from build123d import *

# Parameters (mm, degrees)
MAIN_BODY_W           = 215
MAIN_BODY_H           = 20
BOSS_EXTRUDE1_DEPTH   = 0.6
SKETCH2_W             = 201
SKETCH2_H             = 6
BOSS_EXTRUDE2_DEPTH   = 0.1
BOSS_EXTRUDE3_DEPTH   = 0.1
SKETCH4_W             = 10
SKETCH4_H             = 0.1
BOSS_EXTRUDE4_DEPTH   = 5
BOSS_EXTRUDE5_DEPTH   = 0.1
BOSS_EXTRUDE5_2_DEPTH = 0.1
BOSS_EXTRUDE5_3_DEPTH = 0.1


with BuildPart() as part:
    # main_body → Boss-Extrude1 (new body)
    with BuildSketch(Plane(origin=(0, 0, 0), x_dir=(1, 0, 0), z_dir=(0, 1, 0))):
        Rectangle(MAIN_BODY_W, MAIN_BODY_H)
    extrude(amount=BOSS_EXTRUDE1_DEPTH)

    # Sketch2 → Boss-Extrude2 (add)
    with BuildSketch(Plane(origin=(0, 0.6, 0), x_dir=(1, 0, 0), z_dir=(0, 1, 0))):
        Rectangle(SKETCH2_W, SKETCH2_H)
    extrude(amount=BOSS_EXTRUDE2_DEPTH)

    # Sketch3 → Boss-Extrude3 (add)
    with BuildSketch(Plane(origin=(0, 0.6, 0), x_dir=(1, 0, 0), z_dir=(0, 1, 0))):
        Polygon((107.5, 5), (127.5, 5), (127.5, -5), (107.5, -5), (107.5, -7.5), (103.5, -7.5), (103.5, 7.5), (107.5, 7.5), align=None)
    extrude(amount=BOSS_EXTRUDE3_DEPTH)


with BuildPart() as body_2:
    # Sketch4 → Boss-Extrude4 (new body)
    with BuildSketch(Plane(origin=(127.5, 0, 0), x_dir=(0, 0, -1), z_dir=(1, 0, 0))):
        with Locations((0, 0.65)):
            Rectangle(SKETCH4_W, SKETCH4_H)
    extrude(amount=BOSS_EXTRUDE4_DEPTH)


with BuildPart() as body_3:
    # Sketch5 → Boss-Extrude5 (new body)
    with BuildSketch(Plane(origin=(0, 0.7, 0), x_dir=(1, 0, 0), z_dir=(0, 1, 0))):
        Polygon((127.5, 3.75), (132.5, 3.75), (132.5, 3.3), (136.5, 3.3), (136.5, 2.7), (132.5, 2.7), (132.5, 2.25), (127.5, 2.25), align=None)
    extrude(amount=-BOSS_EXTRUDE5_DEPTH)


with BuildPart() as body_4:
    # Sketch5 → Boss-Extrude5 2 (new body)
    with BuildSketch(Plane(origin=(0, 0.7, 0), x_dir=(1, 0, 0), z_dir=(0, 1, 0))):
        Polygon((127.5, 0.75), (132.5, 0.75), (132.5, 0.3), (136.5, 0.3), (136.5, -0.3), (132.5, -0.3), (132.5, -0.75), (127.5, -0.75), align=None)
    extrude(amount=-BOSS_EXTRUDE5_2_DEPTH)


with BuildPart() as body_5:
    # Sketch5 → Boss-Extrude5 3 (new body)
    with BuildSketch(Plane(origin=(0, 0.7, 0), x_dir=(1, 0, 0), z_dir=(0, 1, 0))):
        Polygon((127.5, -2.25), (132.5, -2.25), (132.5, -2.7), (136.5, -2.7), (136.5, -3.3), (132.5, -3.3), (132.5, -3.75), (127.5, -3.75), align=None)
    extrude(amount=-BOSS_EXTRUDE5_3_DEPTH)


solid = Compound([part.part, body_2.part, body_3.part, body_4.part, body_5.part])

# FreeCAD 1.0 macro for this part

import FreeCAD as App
import Part
import Sketcher
from FreeCAD import Vector
Q = App.Units.Quantity


def add_polygon(sketch, points):
    """Adds a closed chain of lines whose ends are joined by coincident constraints."""
    first, n = sketch.GeometryCount, len(points)
    for a, b in zip(points, points[1:] + points[:1]):
        sketch.addGeometry(Part.LineSegment(App.Vector(*a, 0), App.Vector(*b, 0)), False)
    for i in range(n):
        sketch.addConstraint(Sketcher.Constraint("Coincident", first + i, 2, first + (i + 1) % n, 1))

doc = App.newDocument("Part")
body = doc.addObject("PartDesign::Body", "Body")

sketch1 = body.newObject("Sketcher::SketchObject", "Sketch")
sketch1.AttachmentSupport = (doc.getObject("XZ_Plane"), [""])
sketch1.MapMode = "FlatFace"
add_polygon(sketch1, [(-108, -10), (-108, 10), (108, 10), (108, -10)])
sketch1.addConstraint(Sketcher.Constraint("Vertical", 0))
sketch1.addConstraint(Sketcher.Constraint("Horizontal", 1))
sketch1.addConstraint(Sketcher.Constraint("Vertical", 2))
sketch1.addConstraint(Sketcher.Constraint("Horizontal", 3))
sketch1.addConstraint(Sketcher.Constraint("Symmetric", 0, 2, 2, 2, -1, 1))
sketch1.addConstraint(Sketcher.Constraint("DistanceX", 1, 1, 1, 2, Q("215 mm")))
sketch1.addConstraint(Sketcher.Constraint("DistanceY", 0, 1, 0, 2, Q("20 mm")))
pad1 = body.newObject("PartDesign::Pad", "Pad")
pad1.Profile = sketch1
pad1.Length = 0.6
pad1.Reversed = True

sketch2 = body.newObject("Sketcher::SketchObject", "Sketch001")
sketch2.AttachmentSupport = (doc.getObject("XZ_Plane"), [""])
sketch2.MapMode = "FlatFace"
sketch2.AttachmentOffset = App.Placement(Vector(0, 0, -0.6), App.Rotation())
add_polygon(sketch2, [(-100, -3), (-100, 3), (100, 3), (100, -3)])
sketch2.addConstraint(Sketcher.Constraint("Vertical", 0))
sketch2.addConstraint(Sketcher.Constraint("Horizontal", 1))
sketch2.addConstraint(Sketcher.Constraint("Vertical", 2))
sketch2.addConstraint(Sketcher.Constraint("Horizontal", 3))
sketch2.addConstraint(Sketcher.Constraint("Symmetric", 0, 2, 2, 2, -1, 1))
sketch2.addConstraint(Sketcher.Constraint("DistanceX", 1, 1, 1, 2, Q("201 mm")))
sketch2.addConstraint(Sketcher.Constraint("DistanceY", 0, 1, 0, 2, Q("6 mm")))
pad2 = body.newObject("PartDesign::Pad", "Pad001")
pad2.Profile = sketch2
pad2.Length = 0.1
pad2.Reversed = True

sketch3 = body.newObject("Sketcher::SketchObject", "Sketch002")
sketch3.AttachmentSupport = (doc.getObject("XZ_Plane"), [""])
sketch3.MapMode = "FlatFace"
sketch3.AttachmentOffset = App.Placement(Vector(0, 0, -0.6), App.Rotation())
add_polygon(sketch3, [(127.5, -5), (107.5, -5), (107.5, -7.5), (103.5, -7.5), (103.5, 7.5), (107.5, 7.5), (107.5, 5), (127.5, 5)])
sketch3.addConstraint(Sketcher.Constraint("Horizontal", 0))
sketch3.addConstraint(Sketcher.Constraint("Vertical", 1))
sketch3.addConstraint(Sketcher.Constraint("Horizontal", 2))
sketch3.addConstraint(Sketcher.Constraint("Vertical", 3))
sketch3.addConstraint(Sketcher.Constraint("Horizontal", 4))
sketch3.addConstraint(Sketcher.Constraint("Vertical", 5))
sketch3.addConstraint(Sketcher.Constraint("Horizontal", 6))
sketch3.addConstraint(Sketcher.Constraint("Vertical", 7))
sketch3.addConstraint(Sketcher.Constraint("Symmetric", 1, 2, 4, 2, -1))
sketch3.addConstraint(Sketcher.Constraint("Equal", 1, 5))
sketch3.addConstraint(Sketcher.Constraint("DistanceX", 0, 2, 0, 1, Q("20 mm")))
sketch3.addConstraint(Sketcher.Constraint("DistanceX", 2, 2, 2, 1, Q("4 mm")))
sketch3.addConstraint(Sketcher.Constraint("DistanceY", 3, 1, 3, 2, Q("15 mm")))
sketch3.addConstraint(Sketcher.Constraint("DistanceY", 7, 2, 7, 1, Q("10 mm")))
sketch3.addConstraint(Sketcher.Constraint("DistanceX", -1, 1, 0, 2, Q("107.5 mm")))
pad3 = body.newObject("PartDesign::Pad", "Pad002")
pad3.Profile = sketch3
pad3.Length = 0.1
pad3.Reversed = True
body2 = doc.addObject("PartDesign::Body", "Body001")

sketch4 = body2.newObject("Sketcher::SketchObject", "Sketch003")
sketch4.AttachmentSupport = (doc.getObject("YZ_Plane001"), [""])
sketch4.MapMode = "FlatFace"
sketch4.AttachmentOffset = App.Placement(Vector(0, 0, 127.5), App.Rotation())
add_polygon(sketch4, [(0.7, 5), (0.6, 5), (0.6, -5), (0.7, -5)])
sketch4.addConstraint(Sketcher.Constraint("Horizontal", 0))
sketch4.addConstraint(Sketcher.Constraint("Vertical", 1))
sketch4.addConstraint(Sketcher.Constraint("Horizontal", 2))
sketch4.addConstraint(Sketcher.Constraint("Vertical", 3))
sketch4.addConstraint(Sketcher.Constraint("DistanceY", 1, 2, 1, 1, Q("10 mm")))
sketch4.addConstraint(Sketcher.Constraint("DistanceX", 0, 2, 0, 1, Q("0.1 mm")))
sketch4.addConstraint(Sketcher.Constraint("DistanceY", -1, 1, 0, 2, Q("5 mm")))
sketch4.addConstraint(Sketcher.Constraint("DistanceX", -1, 1, 0, 2, Q("0.6 mm")))
pad4 = body2.newObject("PartDesign::Pad", "Pad003")
pad4.Profile = sketch4
pad4.Length = 5
body3 = doc.addObject("PartDesign::Body", "Body002")

sketch5 = body3.newObject("Sketcher::SketchObject", "Sketch004")
sketch5.AttachmentSupport = (doc.getObject("XZ_Plane002"), [""])
sketch5.MapMode = "FlatFace"
sketch5.AttachmentOffset = App.Placement(Vector(0, 0, -0.7), App.Rotation())
add_polygon(sketch5, [(132.5, -3.75), (127.5, -3.75), (127.5, -2.25), (132.5, -2.25), (132.5, -2.7), (136.5, -2.7), (136.5, -3.3), (132.5, -3.3)])
sketch5.addConstraint(Sketcher.Constraint("Horizontal", 0))
sketch5.addConstraint(Sketcher.Constraint("Vertical", 1))
sketch5.addConstraint(Sketcher.Constraint("Horizontal", 2))
sketch5.addConstraint(Sketcher.Constraint("Vertical", 3))
sketch5.addConstraint(Sketcher.Constraint("Horizontal", 4))
sketch5.addConstraint(Sketcher.Constraint("Vertical", 5))
sketch5.addConstraint(Sketcher.Constraint("Horizontal", 6))
sketch5.addConstraint(Sketcher.Constraint("Vertical", 7))
sketch5.addConstraint(Sketcher.Constraint("Vertical", 3, 2, 6, 2))
sketch5.addConstraint(Sketcher.Constraint("Equal", 3, 7))
sketch5.addConstraint(Sketcher.Constraint("DistanceX", 0, 2, 0, 1, Q("5 mm")))
sketch5.addConstraint(Sketcher.Constraint("DistanceX", 4, 1, 4, 2, Q("4 mm")))
sketch5.addConstraint(Sketcher.Constraint("DistanceY", 1, 1, 1, 2, Q("1.5 mm")))
sketch5.addConstraint(Sketcher.Constraint("DistanceY", 5, 2, 5, 1, Q("0.6 mm")))
sketch5.addConstraint(Sketcher.Constraint("DistanceX", -1, 1, 0, 2, Q("127.5 mm")))
sketch5.addConstraint(Sketcher.Constraint("DistanceY", 3, 2, -1, 1, Q("2.7 mm")))
pad5 = body3.newObject("PartDesign::Pad", "Pad004")
pad5.Profile = sketch5
pad5.Length = 0.1
body4 = doc.addObject("PartDesign::Body", "Body003")

sketch6 = body4.newObject("Sketcher::SketchObject", "Sketch005")
sketch6.AttachmentSupport = (doc.getObject("XZ_Plane003"), [""])
sketch6.MapMode = "FlatFace"
sketch6.AttachmentOffset = App.Placement(Vector(0, 0, -0.7), App.Rotation())
add_polygon(sketch6, [(132.5, -0.75), (127.5, -0.75), (127.5, 0.75), (132.5, 0.75), (132.5, 0.3), (136.5, 0.3), (136.5, -0.3), (132.5, -0.3)])
sketch6.addConstraint(Sketcher.Constraint("Horizontal", 0))
sketch6.addConstraint(Sketcher.Constraint("Vertical", 1))
sketch6.addConstraint(Sketcher.Constraint("Horizontal", 2))
sketch6.addConstraint(Sketcher.Constraint("Vertical", 3))
sketch6.addConstraint(Sketcher.Constraint("Horizontal", 4))
sketch6.addConstraint(Sketcher.Constraint("Vertical", 5))
sketch6.addConstraint(Sketcher.Constraint("Horizontal", 6))
sketch6.addConstraint(Sketcher.Constraint("Vertical", 7))
sketch6.addConstraint(Sketcher.Constraint("Symmetric", 3, 2, 6, 2, -1))
sketch6.addConstraint(Sketcher.Constraint("Equal", 3, 7))
sketch6.addConstraint(Sketcher.Constraint("DistanceX", 0, 2, 0, 1, Q("5 mm")))
sketch6.addConstraint(Sketcher.Constraint("DistanceX", 4, 1, 4, 2, Q("4 mm")))
sketch6.addConstraint(Sketcher.Constraint("DistanceY", 1, 1, 1, 2, Q("1.5 mm")))
sketch6.addConstraint(Sketcher.Constraint("DistanceY", 5, 2, 5, 1, Q("0.6 mm")))
sketch6.addConstraint(Sketcher.Constraint("DistanceX", -1, 1, 0, 2, Q("127.5 mm")))
pad6 = body4.newObject("PartDesign::Pad", "Pad005")
pad6.Profile = sketch6
pad6.Length = 0.1
body5 = doc.addObject("PartDesign::Body", "Body004")

sketch7 = body5.newObject("Sketcher::SketchObject", "Sketch006")
sketch7.AttachmentSupport = (doc.getObject("XZ_Plane004"), [""])
sketch7.MapMode = "FlatFace"
sketch7.AttachmentOffset = App.Placement(Vector(0, 0, -0.7), App.Rotation())
add_polygon(sketch7, [(132.5, 2.25), (127.5, 2.25), (127.5, 3.75), (132.5, 3.75), (132.5, 3.3), (136.5, 3.3), (136.5, 2.7), (132.5, 2.7)])
sketch7.addConstraint(Sketcher.Constraint("Horizontal", 0))
sketch7.addConstraint(Sketcher.Constraint("Vertical", 1))
sketch7.addConstraint(Sketcher.Constraint("Horizontal", 2))
sketch7.addConstraint(Sketcher.Constraint("Vertical", 3))
sketch7.addConstraint(Sketcher.Constraint("Horizontal", 4))
sketch7.addConstraint(Sketcher.Constraint("Vertical", 5))
sketch7.addConstraint(Sketcher.Constraint("Horizontal", 6))
sketch7.addConstraint(Sketcher.Constraint("Vertical", 7))
sketch7.addConstraint(Sketcher.Constraint("Vertical", 3, 2, 6, 2))
sketch7.addConstraint(Sketcher.Constraint("Equal", 3, 7))
sketch7.addConstraint(Sketcher.Constraint("DistanceX", 0, 2, 0, 1, Q("5 mm")))
sketch7.addConstraint(Sketcher.Constraint("DistanceX", 4, 1, 4, 2, Q("4 mm")))
sketch7.addConstraint(Sketcher.Constraint("DistanceY", 1, 1, 1, 2, Q("1.5 mm")))
sketch7.addConstraint(Sketcher.Constraint("DistanceY", 5, 2, 5, 1, Q("0.6 mm")))
sketch7.addConstraint(Sketcher.Constraint("DistanceX", -1, 1, 0, 2, Q("127.5 mm")))
sketch7.addConstraint(Sketcher.Constraint("DistanceY", -1, 1, 3, 2, Q("3.3 mm")))
pad7 = body5.newObject("PartDesign::Pad", "Pad006")
pad7.Profile = sketch7
pad7.Length = 0.1

doc.recompute()
